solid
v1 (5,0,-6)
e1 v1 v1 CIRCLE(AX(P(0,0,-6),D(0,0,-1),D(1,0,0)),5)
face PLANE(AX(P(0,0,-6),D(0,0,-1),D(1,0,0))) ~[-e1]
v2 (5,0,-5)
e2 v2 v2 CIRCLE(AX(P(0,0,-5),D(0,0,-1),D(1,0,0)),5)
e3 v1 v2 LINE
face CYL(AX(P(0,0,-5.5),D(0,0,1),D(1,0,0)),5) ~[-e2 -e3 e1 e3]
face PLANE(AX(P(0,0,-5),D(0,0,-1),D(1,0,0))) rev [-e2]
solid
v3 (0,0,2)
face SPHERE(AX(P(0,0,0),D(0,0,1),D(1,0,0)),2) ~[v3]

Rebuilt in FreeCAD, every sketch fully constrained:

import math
import FreeCAD as App
import Part
import Sketcher

V = App.Vector
Q = App.Units.Quantity


def add_polygon(sketch, points):
    """Adds a closed chain of lines whose ends are joined by coincident constraints."""
    first, n = sketch.GeometryCount, len(points)
    for a, b in zip(points, points[1:] + points[:1]):
        sketch.addGeometry(Part.LineSegment(App.Vector(*a, 0), App.Vector(*b, 0)), False)
    for i in range(n):
        sketch.addConstraint(Sketcher.Constraint("Coincident", first + i, 2, first + (i + 1) % n, 1))

doc = App.newDocument("Part")
body = doc.addObject("PartDesign::Body", "Body")
body.AllowCompound = True

sketch1 = body.newObject("Sketcher::SketchObject", "Sketch")
sketch1.AttachmentSupport = (doc.getObject("XZ_Plane"), [""])
sketch1.MapMode = "FlatFace"
sketch1.addGeometry(Part.LineSegment(V(0, 2, 0), V(0, -2, 0)), False)
sketch1.addGeometry(Part.ArcOfCircle(Part.Circle(V(0, 0, 0), V(0, 0, 1), 2), math.radians(-90), math.radians(90)), False)
add_polygon(sketch1, [(0, -5), (0, -6), (5, -6), (5, -5)])
sketch1.addConstraint([
    Sketcher.Constraint("Coincident", 0, 1, 1, 2),
    Sketcher.Constraint("Coincident", 1, 1, 0, 2),
    Sketcher.Constraint("Vertical", 0),
    Sketcher.Constraint("Vertical", 2),
    Sketcher.Constraint("Horizontal", 3),
    Sketcher.Constraint("Vertical", 4),
    Sketcher.Constraint("Horizontal", 5),
    Sketcher.Constraint("Coincident", 1, 3, -1, 1),
    Sketcher.Constraint("PointOnObject", 0, 1, -2),
    Sketcher.Constraint("PointOnObject", 2, 2, -2),
    Sketcher.Constraint("Radius", 1, Q("2 mm")),
    Sketcher.Constraint("DistanceX", 3, 1, 3, 2, Q("5 mm")),
    Sketcher.Constraint("DistanceY", 2, 2, 2, 1, Q("1 mm")),
    Sketcher.Constraint("DistanceY", 2, 2, -1, 1, Q("6 mm")),
])
revolution = body.newObject("PartDesign::Revolution", "Revolution")
revolution.Profile = sketch1
revolution.ReferenceAxis = (sketch1, ["V_Axis"])
revolution.Angle = 360

doc.recompute()
